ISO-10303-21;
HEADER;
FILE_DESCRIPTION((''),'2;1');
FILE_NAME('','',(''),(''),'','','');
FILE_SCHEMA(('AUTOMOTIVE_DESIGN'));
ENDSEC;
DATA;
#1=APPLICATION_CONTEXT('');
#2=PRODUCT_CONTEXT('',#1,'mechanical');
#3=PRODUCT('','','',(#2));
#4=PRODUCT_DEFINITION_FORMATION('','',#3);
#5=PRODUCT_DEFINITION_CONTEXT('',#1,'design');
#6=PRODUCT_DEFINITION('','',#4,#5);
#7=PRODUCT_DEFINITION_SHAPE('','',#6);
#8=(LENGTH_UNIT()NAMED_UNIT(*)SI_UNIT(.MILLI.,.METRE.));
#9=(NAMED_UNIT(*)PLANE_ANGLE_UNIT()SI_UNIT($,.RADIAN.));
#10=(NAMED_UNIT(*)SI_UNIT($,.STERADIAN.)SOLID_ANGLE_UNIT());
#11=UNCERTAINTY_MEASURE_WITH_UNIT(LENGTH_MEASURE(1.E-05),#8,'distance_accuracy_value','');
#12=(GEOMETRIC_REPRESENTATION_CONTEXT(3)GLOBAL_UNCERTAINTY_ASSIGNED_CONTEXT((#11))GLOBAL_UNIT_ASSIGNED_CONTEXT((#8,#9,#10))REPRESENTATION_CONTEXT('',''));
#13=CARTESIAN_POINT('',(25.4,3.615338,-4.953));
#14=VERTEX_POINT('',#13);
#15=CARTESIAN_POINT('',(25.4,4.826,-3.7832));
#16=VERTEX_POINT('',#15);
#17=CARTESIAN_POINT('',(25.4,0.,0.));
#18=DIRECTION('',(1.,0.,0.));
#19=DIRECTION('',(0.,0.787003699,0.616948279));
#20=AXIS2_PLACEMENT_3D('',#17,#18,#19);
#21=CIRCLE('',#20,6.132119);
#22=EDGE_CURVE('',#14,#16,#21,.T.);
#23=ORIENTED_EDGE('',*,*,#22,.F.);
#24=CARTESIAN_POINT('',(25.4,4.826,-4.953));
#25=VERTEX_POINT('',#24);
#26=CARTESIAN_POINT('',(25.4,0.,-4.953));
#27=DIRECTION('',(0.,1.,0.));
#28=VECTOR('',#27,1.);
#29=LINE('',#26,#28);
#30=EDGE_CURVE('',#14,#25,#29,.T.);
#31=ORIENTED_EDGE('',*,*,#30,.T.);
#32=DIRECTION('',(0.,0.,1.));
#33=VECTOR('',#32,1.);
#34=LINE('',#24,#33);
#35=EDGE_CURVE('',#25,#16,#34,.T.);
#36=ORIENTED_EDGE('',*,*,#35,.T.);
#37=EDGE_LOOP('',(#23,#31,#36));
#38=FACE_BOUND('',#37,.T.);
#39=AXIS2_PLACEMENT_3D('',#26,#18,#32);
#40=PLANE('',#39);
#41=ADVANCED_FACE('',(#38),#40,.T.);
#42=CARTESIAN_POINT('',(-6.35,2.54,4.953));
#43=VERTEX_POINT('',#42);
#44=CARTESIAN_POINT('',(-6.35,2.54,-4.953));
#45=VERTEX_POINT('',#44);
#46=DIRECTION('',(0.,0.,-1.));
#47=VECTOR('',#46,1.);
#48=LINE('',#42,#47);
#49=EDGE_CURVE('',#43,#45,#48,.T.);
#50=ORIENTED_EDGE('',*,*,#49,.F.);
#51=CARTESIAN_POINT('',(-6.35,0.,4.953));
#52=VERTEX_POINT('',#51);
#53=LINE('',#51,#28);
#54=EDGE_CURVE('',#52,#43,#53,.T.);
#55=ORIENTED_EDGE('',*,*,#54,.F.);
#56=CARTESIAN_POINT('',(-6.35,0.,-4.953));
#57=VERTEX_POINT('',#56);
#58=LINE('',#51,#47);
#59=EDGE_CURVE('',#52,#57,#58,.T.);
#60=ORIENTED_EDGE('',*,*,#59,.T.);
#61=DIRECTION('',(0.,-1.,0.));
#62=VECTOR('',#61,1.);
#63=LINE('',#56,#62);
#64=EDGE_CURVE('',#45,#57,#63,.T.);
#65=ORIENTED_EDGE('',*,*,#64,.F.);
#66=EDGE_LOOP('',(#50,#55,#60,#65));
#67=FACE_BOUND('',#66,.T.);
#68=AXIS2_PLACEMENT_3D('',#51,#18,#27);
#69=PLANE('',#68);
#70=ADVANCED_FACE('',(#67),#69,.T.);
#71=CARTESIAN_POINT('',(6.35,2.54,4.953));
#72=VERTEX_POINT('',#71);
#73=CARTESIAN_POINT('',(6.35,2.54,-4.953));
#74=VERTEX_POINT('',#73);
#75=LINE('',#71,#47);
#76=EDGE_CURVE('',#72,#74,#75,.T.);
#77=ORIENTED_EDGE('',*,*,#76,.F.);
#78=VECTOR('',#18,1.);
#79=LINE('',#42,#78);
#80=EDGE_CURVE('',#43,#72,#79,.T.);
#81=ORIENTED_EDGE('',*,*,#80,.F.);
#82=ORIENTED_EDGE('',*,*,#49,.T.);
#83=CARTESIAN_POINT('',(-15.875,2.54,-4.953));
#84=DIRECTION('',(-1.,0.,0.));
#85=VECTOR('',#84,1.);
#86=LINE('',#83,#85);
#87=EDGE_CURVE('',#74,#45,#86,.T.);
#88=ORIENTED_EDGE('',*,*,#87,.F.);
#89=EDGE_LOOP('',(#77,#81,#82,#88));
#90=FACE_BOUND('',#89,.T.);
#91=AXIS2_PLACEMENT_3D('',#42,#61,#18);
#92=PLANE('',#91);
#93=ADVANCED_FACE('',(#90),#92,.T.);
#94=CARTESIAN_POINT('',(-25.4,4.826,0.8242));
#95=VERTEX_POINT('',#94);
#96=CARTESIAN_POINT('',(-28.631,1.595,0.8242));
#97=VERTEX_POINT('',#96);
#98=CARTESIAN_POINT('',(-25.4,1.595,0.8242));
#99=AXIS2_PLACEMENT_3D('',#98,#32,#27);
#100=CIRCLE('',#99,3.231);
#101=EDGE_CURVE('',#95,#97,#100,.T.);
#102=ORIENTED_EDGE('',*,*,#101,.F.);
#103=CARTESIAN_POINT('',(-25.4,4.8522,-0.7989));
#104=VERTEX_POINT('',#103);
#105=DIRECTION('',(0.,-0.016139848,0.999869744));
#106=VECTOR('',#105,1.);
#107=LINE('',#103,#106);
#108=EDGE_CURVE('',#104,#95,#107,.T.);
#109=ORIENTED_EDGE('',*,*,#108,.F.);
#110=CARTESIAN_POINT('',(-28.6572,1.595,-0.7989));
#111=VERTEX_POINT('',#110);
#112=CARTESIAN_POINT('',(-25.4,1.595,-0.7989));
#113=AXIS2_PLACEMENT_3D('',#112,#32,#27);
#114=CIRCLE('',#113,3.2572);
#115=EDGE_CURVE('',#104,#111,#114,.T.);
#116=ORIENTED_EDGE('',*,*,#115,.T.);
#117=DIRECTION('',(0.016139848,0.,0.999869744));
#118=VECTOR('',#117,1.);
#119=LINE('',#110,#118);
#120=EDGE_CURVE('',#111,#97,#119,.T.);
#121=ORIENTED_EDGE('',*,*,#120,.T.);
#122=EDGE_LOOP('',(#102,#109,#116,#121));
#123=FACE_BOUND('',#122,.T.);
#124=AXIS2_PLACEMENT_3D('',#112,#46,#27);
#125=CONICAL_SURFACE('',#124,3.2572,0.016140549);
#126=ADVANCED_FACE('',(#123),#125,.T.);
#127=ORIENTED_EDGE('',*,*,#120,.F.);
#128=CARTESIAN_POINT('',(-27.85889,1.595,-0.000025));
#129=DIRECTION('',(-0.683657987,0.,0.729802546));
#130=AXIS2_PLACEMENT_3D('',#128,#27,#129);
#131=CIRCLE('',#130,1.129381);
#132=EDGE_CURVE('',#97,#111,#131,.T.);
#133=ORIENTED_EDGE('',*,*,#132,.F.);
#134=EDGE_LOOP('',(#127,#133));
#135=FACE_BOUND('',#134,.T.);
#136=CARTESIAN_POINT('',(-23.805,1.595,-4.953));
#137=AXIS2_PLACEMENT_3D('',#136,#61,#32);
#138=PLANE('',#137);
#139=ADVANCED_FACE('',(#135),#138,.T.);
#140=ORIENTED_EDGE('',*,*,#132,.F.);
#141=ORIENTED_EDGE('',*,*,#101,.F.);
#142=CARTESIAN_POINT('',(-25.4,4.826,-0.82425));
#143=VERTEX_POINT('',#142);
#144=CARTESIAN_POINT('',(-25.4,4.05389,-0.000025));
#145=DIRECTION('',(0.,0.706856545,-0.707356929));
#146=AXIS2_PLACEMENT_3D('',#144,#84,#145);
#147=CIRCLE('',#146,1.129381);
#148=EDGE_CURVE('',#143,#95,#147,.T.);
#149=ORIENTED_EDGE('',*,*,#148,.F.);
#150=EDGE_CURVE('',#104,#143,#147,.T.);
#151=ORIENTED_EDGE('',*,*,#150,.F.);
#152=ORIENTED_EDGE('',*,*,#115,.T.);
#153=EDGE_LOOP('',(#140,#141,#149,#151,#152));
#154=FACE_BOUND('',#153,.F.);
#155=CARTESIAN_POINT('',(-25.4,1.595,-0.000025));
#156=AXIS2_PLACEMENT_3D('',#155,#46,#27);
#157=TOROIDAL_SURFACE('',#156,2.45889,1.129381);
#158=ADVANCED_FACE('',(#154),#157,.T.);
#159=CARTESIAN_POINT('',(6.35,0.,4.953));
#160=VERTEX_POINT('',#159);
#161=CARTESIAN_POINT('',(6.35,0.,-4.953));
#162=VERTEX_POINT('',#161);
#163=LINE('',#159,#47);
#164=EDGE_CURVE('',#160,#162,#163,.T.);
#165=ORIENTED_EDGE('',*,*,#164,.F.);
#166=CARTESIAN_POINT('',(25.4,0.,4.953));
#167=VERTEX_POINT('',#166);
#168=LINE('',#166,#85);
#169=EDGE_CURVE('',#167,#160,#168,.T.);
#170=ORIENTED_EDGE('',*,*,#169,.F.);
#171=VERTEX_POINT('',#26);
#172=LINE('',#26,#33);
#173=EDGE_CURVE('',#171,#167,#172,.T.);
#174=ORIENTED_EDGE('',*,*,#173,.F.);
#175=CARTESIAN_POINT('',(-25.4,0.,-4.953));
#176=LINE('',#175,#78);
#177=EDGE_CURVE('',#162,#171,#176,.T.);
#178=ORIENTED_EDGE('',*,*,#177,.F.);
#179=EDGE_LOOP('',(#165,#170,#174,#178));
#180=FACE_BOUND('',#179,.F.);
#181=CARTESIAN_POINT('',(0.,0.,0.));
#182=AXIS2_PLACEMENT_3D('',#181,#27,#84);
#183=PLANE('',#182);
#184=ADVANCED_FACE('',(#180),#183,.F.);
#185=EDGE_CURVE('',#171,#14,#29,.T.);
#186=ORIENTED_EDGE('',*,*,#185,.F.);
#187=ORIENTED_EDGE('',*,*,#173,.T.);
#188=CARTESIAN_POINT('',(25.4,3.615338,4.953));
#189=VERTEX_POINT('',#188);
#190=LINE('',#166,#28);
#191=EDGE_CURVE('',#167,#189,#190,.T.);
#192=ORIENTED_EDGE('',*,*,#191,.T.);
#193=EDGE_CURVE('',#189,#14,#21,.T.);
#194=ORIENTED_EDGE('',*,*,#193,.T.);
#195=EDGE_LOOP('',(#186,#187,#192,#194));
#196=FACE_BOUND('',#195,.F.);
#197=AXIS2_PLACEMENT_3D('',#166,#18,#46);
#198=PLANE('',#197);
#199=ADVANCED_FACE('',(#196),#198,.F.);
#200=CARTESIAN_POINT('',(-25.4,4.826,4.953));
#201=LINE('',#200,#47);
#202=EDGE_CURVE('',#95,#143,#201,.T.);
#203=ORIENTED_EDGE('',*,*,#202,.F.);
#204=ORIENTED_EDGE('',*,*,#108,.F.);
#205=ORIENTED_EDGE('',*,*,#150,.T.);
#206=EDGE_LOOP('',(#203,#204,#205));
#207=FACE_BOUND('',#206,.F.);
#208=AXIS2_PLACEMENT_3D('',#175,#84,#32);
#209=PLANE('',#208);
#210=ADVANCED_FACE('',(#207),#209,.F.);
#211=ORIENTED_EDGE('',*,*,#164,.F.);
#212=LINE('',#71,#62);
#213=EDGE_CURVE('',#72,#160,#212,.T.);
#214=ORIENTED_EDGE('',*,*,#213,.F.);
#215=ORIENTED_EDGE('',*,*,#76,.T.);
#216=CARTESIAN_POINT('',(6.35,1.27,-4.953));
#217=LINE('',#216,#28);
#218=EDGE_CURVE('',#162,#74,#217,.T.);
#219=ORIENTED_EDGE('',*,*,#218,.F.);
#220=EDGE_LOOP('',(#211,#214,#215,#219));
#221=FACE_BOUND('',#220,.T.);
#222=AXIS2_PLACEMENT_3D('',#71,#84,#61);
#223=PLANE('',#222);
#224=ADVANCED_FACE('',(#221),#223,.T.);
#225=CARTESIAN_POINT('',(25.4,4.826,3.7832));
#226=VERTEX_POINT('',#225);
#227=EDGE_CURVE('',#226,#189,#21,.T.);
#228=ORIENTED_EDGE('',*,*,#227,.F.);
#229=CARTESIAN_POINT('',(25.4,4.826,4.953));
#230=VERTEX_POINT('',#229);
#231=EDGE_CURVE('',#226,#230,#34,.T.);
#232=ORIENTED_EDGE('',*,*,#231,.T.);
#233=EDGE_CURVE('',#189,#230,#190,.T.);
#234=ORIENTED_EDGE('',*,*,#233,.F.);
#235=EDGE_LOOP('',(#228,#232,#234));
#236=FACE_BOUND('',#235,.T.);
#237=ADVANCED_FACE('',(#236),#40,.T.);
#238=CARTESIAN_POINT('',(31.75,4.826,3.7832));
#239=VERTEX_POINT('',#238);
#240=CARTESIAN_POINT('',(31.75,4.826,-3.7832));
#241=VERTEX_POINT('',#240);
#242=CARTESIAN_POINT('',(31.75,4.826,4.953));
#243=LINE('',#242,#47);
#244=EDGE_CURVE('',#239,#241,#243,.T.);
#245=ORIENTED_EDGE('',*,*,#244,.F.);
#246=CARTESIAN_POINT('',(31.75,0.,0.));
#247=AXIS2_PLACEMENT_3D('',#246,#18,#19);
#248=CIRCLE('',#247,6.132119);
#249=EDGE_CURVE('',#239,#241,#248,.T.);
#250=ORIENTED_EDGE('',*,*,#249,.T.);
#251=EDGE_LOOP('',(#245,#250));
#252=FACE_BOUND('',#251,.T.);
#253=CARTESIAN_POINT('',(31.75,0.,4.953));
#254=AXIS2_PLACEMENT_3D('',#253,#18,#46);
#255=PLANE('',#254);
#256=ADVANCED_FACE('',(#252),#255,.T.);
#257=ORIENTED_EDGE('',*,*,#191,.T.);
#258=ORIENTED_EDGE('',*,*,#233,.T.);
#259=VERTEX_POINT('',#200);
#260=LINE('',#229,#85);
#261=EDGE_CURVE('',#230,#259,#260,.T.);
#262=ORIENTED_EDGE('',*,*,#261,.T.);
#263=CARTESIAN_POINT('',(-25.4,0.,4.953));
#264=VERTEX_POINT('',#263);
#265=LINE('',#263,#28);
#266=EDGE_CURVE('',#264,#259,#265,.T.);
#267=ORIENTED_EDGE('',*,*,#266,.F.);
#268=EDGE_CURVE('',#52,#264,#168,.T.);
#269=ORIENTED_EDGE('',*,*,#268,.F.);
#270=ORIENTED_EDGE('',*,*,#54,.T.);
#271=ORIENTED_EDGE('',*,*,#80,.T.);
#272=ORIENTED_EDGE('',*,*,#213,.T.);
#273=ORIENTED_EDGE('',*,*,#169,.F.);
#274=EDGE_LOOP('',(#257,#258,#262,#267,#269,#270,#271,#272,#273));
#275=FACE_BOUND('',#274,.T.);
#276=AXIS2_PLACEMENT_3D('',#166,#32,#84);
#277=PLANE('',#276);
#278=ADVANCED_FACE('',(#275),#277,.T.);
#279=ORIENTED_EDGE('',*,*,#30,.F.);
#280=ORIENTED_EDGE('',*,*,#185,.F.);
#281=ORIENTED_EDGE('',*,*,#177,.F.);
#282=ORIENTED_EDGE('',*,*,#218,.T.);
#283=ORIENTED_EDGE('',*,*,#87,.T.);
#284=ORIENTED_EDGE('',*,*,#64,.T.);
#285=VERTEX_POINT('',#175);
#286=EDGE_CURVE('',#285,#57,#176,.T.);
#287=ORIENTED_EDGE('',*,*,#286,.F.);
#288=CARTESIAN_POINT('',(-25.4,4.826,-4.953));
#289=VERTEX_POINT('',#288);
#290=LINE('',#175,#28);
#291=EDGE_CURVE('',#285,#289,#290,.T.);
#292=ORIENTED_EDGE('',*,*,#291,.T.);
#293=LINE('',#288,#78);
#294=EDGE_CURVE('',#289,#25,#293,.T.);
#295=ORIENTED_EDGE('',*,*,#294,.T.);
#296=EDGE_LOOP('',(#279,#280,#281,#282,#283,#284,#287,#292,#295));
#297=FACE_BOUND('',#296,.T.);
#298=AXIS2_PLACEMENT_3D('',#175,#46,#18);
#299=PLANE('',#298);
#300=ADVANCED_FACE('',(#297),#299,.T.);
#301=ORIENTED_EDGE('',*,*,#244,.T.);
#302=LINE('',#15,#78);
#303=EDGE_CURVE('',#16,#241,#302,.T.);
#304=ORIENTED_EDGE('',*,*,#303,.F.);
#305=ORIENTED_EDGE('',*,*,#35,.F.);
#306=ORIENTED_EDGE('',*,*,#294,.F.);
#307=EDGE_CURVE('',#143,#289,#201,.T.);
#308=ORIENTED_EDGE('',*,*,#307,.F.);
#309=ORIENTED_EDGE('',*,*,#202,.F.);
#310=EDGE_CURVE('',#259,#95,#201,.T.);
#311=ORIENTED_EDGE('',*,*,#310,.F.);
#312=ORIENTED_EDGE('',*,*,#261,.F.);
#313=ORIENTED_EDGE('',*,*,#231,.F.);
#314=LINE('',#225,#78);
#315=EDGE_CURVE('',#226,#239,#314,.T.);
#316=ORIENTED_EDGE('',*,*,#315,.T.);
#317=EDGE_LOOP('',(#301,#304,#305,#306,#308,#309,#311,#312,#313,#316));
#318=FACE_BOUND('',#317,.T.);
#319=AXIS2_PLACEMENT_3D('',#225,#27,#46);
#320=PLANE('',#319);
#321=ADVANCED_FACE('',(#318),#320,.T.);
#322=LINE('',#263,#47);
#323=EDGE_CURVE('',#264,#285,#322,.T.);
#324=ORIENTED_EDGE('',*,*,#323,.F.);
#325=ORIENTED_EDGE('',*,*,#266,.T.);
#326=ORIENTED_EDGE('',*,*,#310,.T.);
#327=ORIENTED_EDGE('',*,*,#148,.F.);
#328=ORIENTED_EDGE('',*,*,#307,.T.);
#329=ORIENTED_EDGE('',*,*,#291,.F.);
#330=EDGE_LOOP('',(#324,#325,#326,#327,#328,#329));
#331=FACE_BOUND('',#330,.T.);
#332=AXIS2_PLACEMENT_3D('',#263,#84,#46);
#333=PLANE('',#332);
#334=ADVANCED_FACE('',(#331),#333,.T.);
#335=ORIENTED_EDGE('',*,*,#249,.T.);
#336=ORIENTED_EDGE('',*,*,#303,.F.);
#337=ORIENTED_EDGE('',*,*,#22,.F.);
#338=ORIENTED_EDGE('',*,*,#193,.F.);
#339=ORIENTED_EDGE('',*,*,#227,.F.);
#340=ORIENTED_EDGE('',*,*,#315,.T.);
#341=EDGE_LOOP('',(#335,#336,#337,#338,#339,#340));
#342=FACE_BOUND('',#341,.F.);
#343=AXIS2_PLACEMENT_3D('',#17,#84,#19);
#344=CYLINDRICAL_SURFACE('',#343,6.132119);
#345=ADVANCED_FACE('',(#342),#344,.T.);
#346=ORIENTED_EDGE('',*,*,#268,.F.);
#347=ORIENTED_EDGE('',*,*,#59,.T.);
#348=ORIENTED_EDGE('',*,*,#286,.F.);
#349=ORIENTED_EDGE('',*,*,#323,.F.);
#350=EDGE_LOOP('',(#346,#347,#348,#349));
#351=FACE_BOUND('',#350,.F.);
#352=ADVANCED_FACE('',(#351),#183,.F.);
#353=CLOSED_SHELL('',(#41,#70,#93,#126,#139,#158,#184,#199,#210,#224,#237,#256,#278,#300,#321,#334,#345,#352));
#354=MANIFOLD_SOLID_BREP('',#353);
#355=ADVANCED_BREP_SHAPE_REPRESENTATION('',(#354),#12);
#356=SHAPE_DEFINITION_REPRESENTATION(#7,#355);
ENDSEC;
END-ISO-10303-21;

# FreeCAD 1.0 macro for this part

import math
import FreeCAD as App
import Part
import Sketcher
Q = App.Units.Quantity

doc = App.newDocument("Part")
body = doc.addObject("PartDesign::Body", "Body")

# Sketch on XZ plane
sketch1 = body.newObject("Sketcher::SketchObject", "Sketch")
sketch1.AttachmentSupport = (doc.getObject("XZ_Plane"), [""])
sketch1.MapMode = "FlatFace"
sketch1.addGeometry(Part.LineSegment(App.Vector(-25, 5, 0), App.Vector(25, 5, 0)), False)
sketch1.addGeometry(Part.LineSegment(App.Vector(25, 5, 0), App.Vector(25, -5, 0)), False)
sketch1.addGeometry(Part.LineSegment(App.Vector(25, -5, 0), App.Vector(-25, -5, 0)), False)
sketch1.addGeometry(Part.LineSegment(App.Vector(-25, -5, 0), App.Vector(-25, 5, 0)), False)
sketch1.addConstraint(Sketcher.Constraint("Coincident", 0, 2, 1, 1))
sketch1.addConstraint(Sketcher.Constraint("Coincident", 1, 2, 2, 1))
sketch1.addConstraint(Sketcher.Constraint("Coincident", 2, 2, 3, 1))
sketch1.addConstraint(Sketcher.Constraint("Coincident", 3, 2, 0, 1))
sketch1.addConstraint(Sketcher.Constraint("Horizontal", 0))
sketch1.addConstraint(Sketcher.Constraint("Vertical", 1))
sketch1.addConstraint(Sketcher.Constraint("Horizontal", 2))
sketch1.addConstraint(Sketcher.Constraint("Vertical", 3))
sketch1.addConstraint(Sketcher.Constraint("Symmetric", 0, 2, 2, 2, -1, 1))
sketch1.addConstraint(Sketcher.Constraint("DistanceX", 0, 1, 0, 2, Q("2 in")))
sketch1.addConstraint(Sketcher.Constraint("DistanceY", 1, 2, 1, 1, Q("0.39 in")))
pad1 = body.newObject("PartDesign::Pad", "Pad")
pad1.Profile = sketch1
pad1.Length = Q("0.19 in")
pad1.Reversed = True

# Sketch on XY plane
sketch2 = body.newObject("Sketcher::SketchObject", "Sketch001")
sketch2.AttachmentSupport = (doc.getObject("XY_Plane"), [""])
sketch2.MapMode = "FlatFace"
sketch2.AttachmentOffset = App.Placement(App.Vector(0, 0, 0.195 * 25.4), App.Rotation())
sketch2.addGeometry(Part.LineSegment(App.Vector(-6.3, 2.5, 0), App.Vector(-6.3, 0, 0)), False)
sketch2.addGeometry(Part.LineSegment(App.Vector(-6.3, 0, 0), App.Vector(6.3, 0, 0)), False)
sketch2.addGeometry(Part.LineSegment(App.Vector(6.3, 0, 0), App.Vector(6.3, 2.5, 0)), False)
sketch2.addGeometry(Part.LineSegment(App.Vector(6.3, 2.5, 0), App.Vector(-6.3, 2.5, 0)), False)
sketch2.addConstraint(Sketcher.Constraint("Coincident", 0, 2, 1, 1))
sketch2.addConstraint(Sketcher.Constraint("Coincident", 1, 2, 2, 1))
sketch2.addConstraint(Sketcher.Constraint("Coincident", 2, 2, 3, 1))
sketch2.addConstraint(Sketcher.Constraint("Coincident", 3, 2, 0, 1))
sketch2.addConstraint(Sketcher.Constraint("Vertical", 0))
sketch2.addConstraint(Sketcher.Constraint("Horizontal", 1))
sketch2.addConstraint(Sketcher.Constraint("Vertical", 2))
sketch2.addConstraint(Sketcher.Constraint("Horizontal", 3))
sketch2.addConstraint(Sketcher.Constraint("Symmetric", 0, 2, 1, 2, -1, 1))
sketch2.addConstraint(Sketcher.Constraint("DistanceX", 1, 1, 1, 2, Q("0.5 in")))
sketch2.addConstraint(Sketcher.Constraint("DistanceY", 0, 2, 0, 1, Q("0.1 in")))
pocket1 = body.newObject("PartDesign::Pocket", "Pocket")
pocket1.Profile = sketch2
pocket1.Length = Q("0.5 in")

# Sketch on YZ plane
sketch3 = body.newObject("Sketcher::SketchObject", "Sketch002")
sketch3.AttachmentSupport = (doc.getObject("YZ_Plane"), [""])
sketch3.MapMode = "FlatFace"
sketch3.AttachmentOffset = App.Placement(App.Vector(0, 0, 1 * 25.4), App.Rotation())
sketch3.addGeometry(Part.LineSegment(App.Vector(5, -4, 0), App.Vector(5, 4, 0)), False)
sketch3.addGeometry(Part.ArcOfCircle(Part.Circle(App.Vector(0, 0, 0), App.Vector(0, 0, 1), 6), math.radians(38), math.radians(322)), False)
sketch3.addConstraint(Sketcher.Constraint("Coincident", 0, 1, 1, 2))
sketch3.addConstraint(Sketcher.Constraint("Coincident", 1, 1, 0, 2))
sketch3.addConstraint(Sketcher.Constraint("Vertical", 0))
sketch3.addConstraint(Sketcher.Constraint("Coincident", 1, 3, -1, 1))
sketch3.addConstraint(Sketcher.Constraint("DistanceX", -1, 1, 0, 1, Q("0.19 in")))
sketch3.addConstraint(Sketcher.Constraint("Radius", 1, 6.132))
pad2 = body.newObject("PartDesign::Pad", "Pad001")
pad2.Profile = sketch3
pad2.Length = Q("0.25 in")

# Sketch on YZ plane
sketch4 = body.newObject("Sketcher::SketchObject", "Sketch003")
sketch4.AttachmentSupport = (doc.getObject("YZ_Plane"), [""])
sketch4.MapMode = "FlatFace"
sketch4.AttachmentOffset = App.Placement(App.Vector(0, 0, -1 * 25.4), App.Rotation())
sketch4.addGeometry(Part.LineSegment(App.Vector(4.826, 0.8242, 0), App.Vector(4.8522, -0.7989, 0)), False)
sketch4.addGeometry(Part.ArcOfCircle(Part.Circle(App.Vector(4.0539, 0, 0), App.Vector(0, 0, 1), 1.129391), math.radians(46.869355), math.radians(314.978476)), False)
sketch4.addGeometry(Part.LineSegment(App.Vector(1.595, -0.7989, 0), App.Vector(1.595, 0.8242, 0)), True)  # axis
sketch4.addConstraint(Sketcher.Constraint("Coincident", 0, 1, 1, 1))
sketch4.addConstraint(Sketcher.Constraint("Coincident", 1, 2, 0, 2))
sketch4.addConstraint(Sketcher.Constraint("Vertical", 2))
sketch4.addConstraint(Sketcher.Constraint("PointOnObject", 1, 3, -1))
sketch4.addConstraint(Sketcher.Constraint("DistanceX", -1, 1, 0, 1, Q("0.19 in")))
sketch4.addConstraint(Sketcher.Constraint("Radius", 1, 1.1294))
sketch4.addConstraint(Sketcher.Constraint("DistanceY", 2, 1, 2, 2, Q("0.0639 in")))
sketch4.addConstraint(Sketcher.Constraint("Distance", 0, Q("0.0639 in")))
sketch4.addConstraint(Sketcher.Constraint("DistanceX", -1, 1, 1, 3, Q("0.1596 in")))
sketch4.addConstraint(Sketcher.Constraint("DistanceX", -1, 1, 2, 1, Q("0.0628 in")))
sketch4.addConstraint(Sketcher.Constraint("DistanceY", 2, 1, 0, 1, Q("0.0639 in")))
revolution = body.newObject("PartDesign::Revolution", "Revolution")
revolution.Profile = sketch4
revolution.ReferenceAxis = (sketch4, ["Axis0"])
revolution.Angle = 90

doc.recompute()
